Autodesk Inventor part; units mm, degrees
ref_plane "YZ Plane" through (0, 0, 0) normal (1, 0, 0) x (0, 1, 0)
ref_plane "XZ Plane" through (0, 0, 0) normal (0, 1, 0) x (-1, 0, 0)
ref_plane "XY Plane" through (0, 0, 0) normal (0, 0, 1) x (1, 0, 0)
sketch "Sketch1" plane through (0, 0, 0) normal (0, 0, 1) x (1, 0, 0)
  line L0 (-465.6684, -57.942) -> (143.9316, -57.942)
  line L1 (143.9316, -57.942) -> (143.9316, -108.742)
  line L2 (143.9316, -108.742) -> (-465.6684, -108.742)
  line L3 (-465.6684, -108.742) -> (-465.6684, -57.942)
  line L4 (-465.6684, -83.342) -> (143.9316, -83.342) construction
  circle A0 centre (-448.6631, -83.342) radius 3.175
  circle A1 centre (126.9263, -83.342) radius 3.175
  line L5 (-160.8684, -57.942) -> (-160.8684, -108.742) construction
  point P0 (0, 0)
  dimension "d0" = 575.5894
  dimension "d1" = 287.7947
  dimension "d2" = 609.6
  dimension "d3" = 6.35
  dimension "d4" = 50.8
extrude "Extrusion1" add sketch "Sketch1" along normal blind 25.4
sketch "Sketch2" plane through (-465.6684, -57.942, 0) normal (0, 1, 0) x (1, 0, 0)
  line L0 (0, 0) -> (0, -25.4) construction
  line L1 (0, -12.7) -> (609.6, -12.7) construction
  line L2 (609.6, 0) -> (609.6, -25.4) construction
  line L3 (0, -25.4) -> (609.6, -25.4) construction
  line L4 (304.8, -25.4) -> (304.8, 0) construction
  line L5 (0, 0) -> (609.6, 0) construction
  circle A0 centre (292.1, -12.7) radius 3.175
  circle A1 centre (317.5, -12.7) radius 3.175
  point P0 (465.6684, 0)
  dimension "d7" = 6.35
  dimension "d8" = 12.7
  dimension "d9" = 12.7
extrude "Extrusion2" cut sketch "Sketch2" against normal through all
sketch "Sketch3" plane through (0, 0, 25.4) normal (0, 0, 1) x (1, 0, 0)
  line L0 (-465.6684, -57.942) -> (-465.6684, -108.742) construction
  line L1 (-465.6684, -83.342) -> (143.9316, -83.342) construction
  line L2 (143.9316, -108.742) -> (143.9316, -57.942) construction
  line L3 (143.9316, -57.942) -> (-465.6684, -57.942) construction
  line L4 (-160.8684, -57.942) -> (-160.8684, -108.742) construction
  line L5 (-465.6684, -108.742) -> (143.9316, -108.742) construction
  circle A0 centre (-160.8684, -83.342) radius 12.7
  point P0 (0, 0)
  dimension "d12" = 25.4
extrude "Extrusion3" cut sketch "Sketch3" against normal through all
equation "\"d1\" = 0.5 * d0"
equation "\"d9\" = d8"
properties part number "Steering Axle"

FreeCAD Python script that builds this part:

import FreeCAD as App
import Part
import Sketcher

V = App.Vector
Q = App.Units.Quantity


def add_polygon(sketch, points):
    """Adds a closed chain of lines whose ends are joined by coincident constraints."""
    first, n = sketch.GeometryCount, len(points)
    for a, b in zip(points, points[1:] + points[:1]):
        sketch.addGeometry(Part.LineSegment(App.Vector(*a, 0), App.Vector(*b, 0)), False)
    for i in range(n):
        sketch.addConstraint(Sketcher.Constraint("Coincident", first + i, 2, first + (i + 1) % n, 1))

doc = App.newDocument("Part")
body = doc.addObject("PartDesign::Body", "Body")

# Sketch on XY plane
sketch1 = body.newObject("Sketcher::SketchObject", "Sketch")
sketch1.AttachmentSupport = (doc.getObject("XY_Plane"), [""])
sketch1.MapMode = "FlatFace"
add_polygon(sketch1, [(143.9, -57.9), (-465.7, -57.9), (-465.7, -108.7), (143.9, -108.7)])  # lines 0-3
sketch1.addGeometry(Part.Circle(V(-448.7, -83.3, 0), V(0, 0, 1), 3.2), False)  # 4
sketch1.addGeometry(Part.Circle(V(126.9, -83.3, 0), V(0, 0, 1), 3.2), False)  # 5
sketch1.addConstraint([
    Sketcher.Constraint("Horizontal", 0),
    Sketcher.Constraint("Vertical", 1),
    Sketcher.Constraint("Horizontal", 2),
    Sketcher.Constraint("Vertical", 3),
    Sketcher.Constraint("Equal", 4, 5),
    Sketcher.Constraint("Horizontal", 4, 3, 5, 3),
    Sketcher.Constraint("Diameter", 4, Q("0.25 in")),
    Sketcher.Constraint("DistanceX", 0, 2, 0, 1, Q("24 in")),
    Sketcher.Constraint("DistanceY", 1, 2, 1, 1, Q("2 in")),
    Sketcher.Constraint("DistanceX", 4, 3, 5, 3, Q("22.661 in")),
    Sketcher.Constraint("DistanceY", 4, 3, 0, 2, Q("1 in")),
    Sketcher.Constraint("DistanceX", 4, 3, -1, 1, Q("17.6639 in")),
    Sketcher.Constraint("DistanceX", 0, 2, -1, 1, Q("18.3334 in")),
    Sketcher.Constraint("DistanceY", 4, 3, -1, 1, 83.342),
])
pad1 = body.newObject("PartDesign::Pad", "Pad")
pad1.Profile = sketch1
pad1.Length = Q("1 in")

# Sketch on XZ plane
sketch2 = body.newObject("Sketcher::SketchObject", "Sketch001")
sketch2.AttachmentSupport = (doc.getObject("XZ_Plane"), [""])
sketch2.MapMode = "FlatFace"
sketch2.AttachmentOffset = App.Placement(V(0, 0, 57.942), App.Rotation())
sketch2.addGeometry([
    Part.Circle(V(-173.6, 12.7, 0), V(0, 0, 1), 3.2),
    Part.Circle(V(-148.2, 12.7, 0), V(0, 0, 1), 3.2),
], False)
sketch2.addConstraint([
    Sketcher.Constraint("Equal", 0, 1),
    Sketcher.Constraint("Horizontal", 0, 3, 1, 3),
    Sketcher.Constraint("Diameter", 0, Q("0.25 in")),
    Sketcher.Constraint("DistanceY", -1, 1, 0, 3, Q("0.5 in")),
    Sketcher.Constraint("DistanceX", 0, 3, 1, 3, Q("1 in")),
    Sketcher.Constraint("DistanceX", 0, 3, -1, 1, Q("6.8334 in")),
])
pocket1 = body.newObject("PartDesign::Pocket", "Pocket")
pocket1.Profile = sketch2
pocket1.Type = "ThroughAll"
pocket1.Reversed = True

# Sketch on XY plane
sketch3 = body.newObject("Sketcher::SketchObject", "Sketch002")
sketch3.AttachmentSupport = (doc.getObject("XY_Plane"), [""])
sketch3.MapMode = "FlatFace"
sketch3.AttachmentOffset = App.Placement(V(0, 0, 1 * 25.4), App.Rotation())
sketch3.addGeometry(Part.Circle(V(-161, -83, 0), V(0, 0, 1), 13), False)
sketch3.addConstraint([
    Sketcher.Constraint("Diameter", 0, Q("1 in")),
    Sketcher.Constraint("DistanceX", 0, 3, -1, 1, Q("6.3334 in")),
    Sketcher.Constraint("DistanceY", 0, 3, -1, 1, 83.342),
])
pocket2 = body.newObject("PartDesign::Pocket", "Pocket001")
pocket2.Profile = sketch3
pocket2.Type = "ThroughAll"

doc.recompute()
